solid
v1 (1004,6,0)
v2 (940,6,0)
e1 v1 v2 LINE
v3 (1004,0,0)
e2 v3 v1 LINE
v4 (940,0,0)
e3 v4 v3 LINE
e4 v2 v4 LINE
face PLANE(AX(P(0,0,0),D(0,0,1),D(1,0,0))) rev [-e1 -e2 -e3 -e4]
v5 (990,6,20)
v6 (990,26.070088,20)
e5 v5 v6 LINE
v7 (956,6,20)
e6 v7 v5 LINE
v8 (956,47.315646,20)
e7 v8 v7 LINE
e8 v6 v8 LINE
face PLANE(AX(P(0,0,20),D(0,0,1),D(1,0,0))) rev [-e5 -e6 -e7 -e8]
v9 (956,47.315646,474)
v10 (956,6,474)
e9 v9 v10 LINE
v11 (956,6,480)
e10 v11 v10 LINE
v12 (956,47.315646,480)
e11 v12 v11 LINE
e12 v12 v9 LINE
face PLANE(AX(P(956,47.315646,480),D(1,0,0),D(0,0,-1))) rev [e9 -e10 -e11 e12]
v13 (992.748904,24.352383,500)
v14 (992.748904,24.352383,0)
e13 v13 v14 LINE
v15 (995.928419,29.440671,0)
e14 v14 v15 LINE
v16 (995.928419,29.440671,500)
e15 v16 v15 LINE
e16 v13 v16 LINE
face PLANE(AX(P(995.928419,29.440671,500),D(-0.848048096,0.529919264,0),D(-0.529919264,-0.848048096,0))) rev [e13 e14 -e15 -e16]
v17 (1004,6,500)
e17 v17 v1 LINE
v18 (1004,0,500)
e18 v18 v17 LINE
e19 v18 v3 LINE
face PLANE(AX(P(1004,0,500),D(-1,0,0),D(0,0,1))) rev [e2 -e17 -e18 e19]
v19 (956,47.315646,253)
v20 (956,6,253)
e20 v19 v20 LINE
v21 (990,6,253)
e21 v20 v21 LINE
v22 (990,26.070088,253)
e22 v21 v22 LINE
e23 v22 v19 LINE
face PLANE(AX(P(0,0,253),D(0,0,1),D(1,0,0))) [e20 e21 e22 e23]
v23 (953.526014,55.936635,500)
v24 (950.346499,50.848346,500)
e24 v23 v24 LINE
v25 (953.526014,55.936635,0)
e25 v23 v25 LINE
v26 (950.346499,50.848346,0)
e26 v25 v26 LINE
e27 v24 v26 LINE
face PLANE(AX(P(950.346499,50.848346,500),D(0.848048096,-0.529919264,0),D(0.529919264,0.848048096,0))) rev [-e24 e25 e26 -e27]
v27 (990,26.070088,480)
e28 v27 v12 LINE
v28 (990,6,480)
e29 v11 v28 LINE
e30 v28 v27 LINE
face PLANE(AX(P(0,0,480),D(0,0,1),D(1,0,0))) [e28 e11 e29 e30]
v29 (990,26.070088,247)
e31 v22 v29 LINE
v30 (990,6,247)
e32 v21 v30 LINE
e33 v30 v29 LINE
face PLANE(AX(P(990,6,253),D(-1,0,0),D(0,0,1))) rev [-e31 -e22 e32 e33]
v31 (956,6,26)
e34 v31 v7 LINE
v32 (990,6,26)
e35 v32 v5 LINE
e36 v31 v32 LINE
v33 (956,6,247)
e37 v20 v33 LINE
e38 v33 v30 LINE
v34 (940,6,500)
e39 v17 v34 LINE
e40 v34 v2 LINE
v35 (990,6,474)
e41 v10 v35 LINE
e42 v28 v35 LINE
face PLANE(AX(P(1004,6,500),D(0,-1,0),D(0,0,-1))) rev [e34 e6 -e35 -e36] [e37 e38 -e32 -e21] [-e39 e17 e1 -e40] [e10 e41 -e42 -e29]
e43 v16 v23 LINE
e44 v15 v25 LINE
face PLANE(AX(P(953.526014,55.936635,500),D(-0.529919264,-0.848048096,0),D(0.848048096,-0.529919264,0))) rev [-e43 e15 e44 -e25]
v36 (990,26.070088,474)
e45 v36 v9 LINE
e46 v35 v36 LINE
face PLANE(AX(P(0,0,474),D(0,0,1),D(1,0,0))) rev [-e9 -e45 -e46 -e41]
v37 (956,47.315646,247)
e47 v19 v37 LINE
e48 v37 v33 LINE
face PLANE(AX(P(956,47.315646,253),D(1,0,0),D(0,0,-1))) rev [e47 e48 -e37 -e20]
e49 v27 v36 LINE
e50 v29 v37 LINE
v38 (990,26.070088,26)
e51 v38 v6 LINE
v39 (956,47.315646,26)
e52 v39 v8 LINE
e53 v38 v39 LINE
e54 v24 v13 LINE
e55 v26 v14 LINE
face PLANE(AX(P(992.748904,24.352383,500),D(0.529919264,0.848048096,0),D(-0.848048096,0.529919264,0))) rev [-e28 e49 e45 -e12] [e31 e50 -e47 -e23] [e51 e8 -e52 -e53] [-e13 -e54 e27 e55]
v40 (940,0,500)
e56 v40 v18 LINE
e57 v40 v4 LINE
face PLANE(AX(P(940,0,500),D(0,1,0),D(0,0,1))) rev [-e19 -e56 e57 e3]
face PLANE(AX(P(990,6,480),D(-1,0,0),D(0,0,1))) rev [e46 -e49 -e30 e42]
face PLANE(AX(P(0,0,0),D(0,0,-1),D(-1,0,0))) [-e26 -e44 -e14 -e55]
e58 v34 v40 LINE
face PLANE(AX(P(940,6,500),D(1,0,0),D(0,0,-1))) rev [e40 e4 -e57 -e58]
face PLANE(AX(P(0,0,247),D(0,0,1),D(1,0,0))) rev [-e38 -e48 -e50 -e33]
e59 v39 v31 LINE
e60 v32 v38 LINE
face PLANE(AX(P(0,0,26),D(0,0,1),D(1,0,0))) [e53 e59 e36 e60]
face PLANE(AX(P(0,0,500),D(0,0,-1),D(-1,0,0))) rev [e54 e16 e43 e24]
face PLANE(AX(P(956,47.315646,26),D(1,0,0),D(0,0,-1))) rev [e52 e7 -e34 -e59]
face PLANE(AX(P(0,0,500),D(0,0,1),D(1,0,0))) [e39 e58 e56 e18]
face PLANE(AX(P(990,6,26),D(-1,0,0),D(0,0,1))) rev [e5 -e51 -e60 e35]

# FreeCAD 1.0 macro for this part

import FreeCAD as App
import Part
import Sketcher

V = App.Vector
Q = App.Units.Quantity


def add_polygon(sketch, points):
    """Adds a closed chain of lines whose ends are joined by coincident constraints."""
    first, n = sketch.GeometryCount, len(points)
    for a, b in zip(points, points[1:] + points[:1]):
        sketch.addGeometry(Part.LineSegment(App.Vector(*a, 0), App.Vector(*b, 0)), False)
    for i in range(n):
        sketch.addConstraint(Sketcher.Constraint("Coincident", first + i, 2, first + (i + 1) % n, 1))

doc = App.newDocument("Part")
params = doc.addObject("Spreadsheet::Sheet", "Params")
for row, (alias, value) in enumerate([
    ("sketch1_width", "64 mm"),
    ("sketch1_height", "6 mm"),
    ("pad1_length", "500 mm"),
    ("sketch2_length", "50 mm"),
    ("sketch2_length2", "6 mm"),
    ("pad2_length", "500 mm"),
    ("sketch3_width", "34 mm"),
    ("pad3_length", "6 mm"),
    ("sketch4_width", "34 mm"),
    ("pad4_length", "6 mm"),
    ("sketch5_width", "34 mm"),
    ("pad5_length", "6 mm"),
], start=1):
    params.set(f"A{row}", alias)
    params.set(f"B{row}", "=" + value)
    params.setAlias(f"B{row}", alias)

body = doc.addObject("PartDesign::Body", "Body")

# Sketch on XY plane
sketch1 = body.newObject("Sketcher::SketchObject", "Sketch")
sketch1.AttachmentSupport = (doc.getObject("XY_Plane"), [""])
sketch1.MapMode = "FlatFace"
add_polygon(sketch1, [(940, 6), (940, 0), (1004, 0), (1004, 6)])  # lines 0-3
sketch1.addConstraint([
    Sketcher.Constraint("Vertical", 0),
    Sketcher.Constraint("Horizontal", 1),
    Sketcher.Constraint("Vertical", 2),
    Sketcher.Constraint("Horizontal", 3),
    Sketcher.Constraint("PointOnObject", 0, 2, -1),
    Sketcher.Constraint("DistanceX", 1, 1, 1, 2, 64.0),
    Sketcher.Constraint("DistanceY", 0, 2, 0, 1, 6.0),
    Sketcher.Constraint("DistanceX", -1, 1, 0, 2, 940.0),
])
sketch1.setExpression("Constraints[9]", "Params.sketch1_width")
sketch1.setExpression("Constraints[10]", "Params.sketch1_height")
pad1 = body.newObject("PartDesign::Pad", "Pad")
pad1.Profile = sketch1
pad1.setExpression("Length", "Params.pad1_length")
body2 = doc.addObject("PartDesign::Body", "Body001")

# Sketch on XY plane
sketch2 = body2.newObject("Sketcher::SketchObject", "Sketch001")
sketch2.AttachmentSupport = (doc.getObject("XY_Plane001"), [""])
sketch2.MapMode = "FlatFace"
add_polygon(sketch2, [(996, 29), (954, 56), (950, 51), (993, 24)])  # lines 0-3
sketch2.addConstraint([
    Sketcher.Constraint("Perpendicular", 0, 1),
    Sketcher.Constraint("Perpendicular", 1, 2),
    Sketcher.Constraint("Perpendicular", 2, 3),
    Sketcher.Constraint("Angle", 0, Q("148 deg")),
    Sketcher.Constraint("Distance", 0, 50.0),
    Sketcher.Constraint("Distance", 1, 6.0),
    Sketcher.Constraint("DistanceX", -1, 1, 1, 2, 950.346499),
    Sketcher.Constraint("DistanceY", -1, 1, 3, 2, 29.440671),
])
sketch2.setExpression("Constraints[8]", "Params.sketch2_length")
sketch2.setExpression("Constraints[9]", "Params.sketch2_length2")
pad2 = body2.newObject("PartDesign::Pad", "Pad001")
pad2.Profile = sketch2
pad2.setExpression("Length", "Params.pad2_length")
body.AllowCompound = True
doc.recompute()

boolean = body.newObject("PartDesign::Boolean", "Boolean")
boolean.Type = "Fuse"
boolean.addObjects([body2])

# Sketch on XY plane
sketch3 = body.newObject("Sketcher::SketchObject", "Sketch002")
sketch3.AttachmentSupport = (doc.getObject("XY_Plane"), [""])
sketch3.MapMode = "FlatFace"
sketch3.AttachmentOffset = App.Placement(V(0, 0, 20), App.Rotation())
add_polygon(sketch3, [(956, 6), (990, 6), (990, 26), (956, 47)])  # lines 0-3
sketch3.addConstraint([
    Sketcher.Constraint("Horizontal", 0),
    Sketcher.Constraint("Vertical", 1),
    Sketcher.Constraint("Vertical", 3),
    Sketcher.Constraint("DistanceX", 0, 1, 0, 2, 34.0),
    Sketcher.Constraint("Angle", 2, Q("148 deg")),
    Sketcher.Constraint("DistanceX", -1, 1, 0, 2, 990.0),
    Sketcher.Constraint("DistanceY", -1, 1, 0, 2, 6.0),
    Sketcher.Constraint("DistanceY", 1, 1, 1, 2, 20.070088),
])
sketch3.setExpression("Constraints[7]", "Params.sketch3_width")
pad3 = body.newObject("PartDesign::Pad", "Pad002")
pad3.Profile = sketch3
pad3.setExpression("Length", "Params.pad3_length")

# Sketch on XY plane
sketch4 = body.newObject("Sketcher::SketchObject", "Sketch003")
sketch4.AttachmentSupport = (doc.getObject("XY_Plane"), [""])
sketch4.MapMode = "FlatFace"
sketch4.AttachmentOffset = App.Placement(V(0, 0, 247), App.Rotation())
add_polygon(sketch4, [(956, 6), (990, 6), (990, 26), (956, 47)])  # lines 0-3
sketch4.addConstraint([
    Sketcher.Constraint("Horizontal", 0),
    Sketcher.Constraint("Vertical", 1),
    Sketcher.Constraint("Vertical", 3),
    Sketcher.Constraint("DistanceX", 0, 1, 0, 2, 34.0),
    Sketcher.Constraint("Angle", 2, Q("148 deg")),
    Sketcher.Constraint("DistanceX", -1, 1, 0, 2, 990.0),
    Sketcher.Constraint("DistanceY", -1, 1, 0, 2, 6.0),
    Sketcher.Constraint("DistanceY", 1, 1, 1, 2, 20.070088),
])
sketch4.setExpression("Constraints[7]", "Params.sketch4_width")
pad4 = body.newObject("PartDesign::Pad", "Pad003")
pad4.Profile = sketch4
pad4.setExpression("Length", "Params.pad4_length")

# Sketch on XY plane
sketch5 = body.newObject("Sketcher::SketchObject", "Sketch004")
sketch5.AttachmentSupport = (doc.getObject("XY_Plane"), [""])
sketch5.MapMode = "FlatFace"
sketch5.AttachmentOffset = App.Placement(V(0, 0, 474), App.Rotation())
add_polygon(sketch5, [(956, 6), (990, 6), (990, 26), (956, 47)])  # lines 0-3
sketch5.addConstraint([
    Sketcher.Constraint("Horizontal", 0),
    Sketcher.Constraint("Vertical", 1),
    Sketcher.Constraint("Vertical", 3),
    Sketcher.Constraint("DistanceX", 0, 1, 0, 2, 34.0),
    Sketcher.Constraint("Angle", 2, Q("148 deg")),
    Sketcher.Constraint("DistanceX", -1, 1, 0, 2, 990.0),
    Sketcher.Constraint("DistanceY", -1, 1, 0, 2, 6.0),
    Sketcher.Constraint("DistanceY", 1, 1, 1, 2, 20.070088),
])
sketch5.setExpression("Constraints[7]", "Params.sketch5_width")
pad5 = body.newObject("PartDesign::Pad", "Pad004")
pad5.Profile = sketch5
pad5.setExpression("Length", "Params.pad5_length")

doc.recompute()
